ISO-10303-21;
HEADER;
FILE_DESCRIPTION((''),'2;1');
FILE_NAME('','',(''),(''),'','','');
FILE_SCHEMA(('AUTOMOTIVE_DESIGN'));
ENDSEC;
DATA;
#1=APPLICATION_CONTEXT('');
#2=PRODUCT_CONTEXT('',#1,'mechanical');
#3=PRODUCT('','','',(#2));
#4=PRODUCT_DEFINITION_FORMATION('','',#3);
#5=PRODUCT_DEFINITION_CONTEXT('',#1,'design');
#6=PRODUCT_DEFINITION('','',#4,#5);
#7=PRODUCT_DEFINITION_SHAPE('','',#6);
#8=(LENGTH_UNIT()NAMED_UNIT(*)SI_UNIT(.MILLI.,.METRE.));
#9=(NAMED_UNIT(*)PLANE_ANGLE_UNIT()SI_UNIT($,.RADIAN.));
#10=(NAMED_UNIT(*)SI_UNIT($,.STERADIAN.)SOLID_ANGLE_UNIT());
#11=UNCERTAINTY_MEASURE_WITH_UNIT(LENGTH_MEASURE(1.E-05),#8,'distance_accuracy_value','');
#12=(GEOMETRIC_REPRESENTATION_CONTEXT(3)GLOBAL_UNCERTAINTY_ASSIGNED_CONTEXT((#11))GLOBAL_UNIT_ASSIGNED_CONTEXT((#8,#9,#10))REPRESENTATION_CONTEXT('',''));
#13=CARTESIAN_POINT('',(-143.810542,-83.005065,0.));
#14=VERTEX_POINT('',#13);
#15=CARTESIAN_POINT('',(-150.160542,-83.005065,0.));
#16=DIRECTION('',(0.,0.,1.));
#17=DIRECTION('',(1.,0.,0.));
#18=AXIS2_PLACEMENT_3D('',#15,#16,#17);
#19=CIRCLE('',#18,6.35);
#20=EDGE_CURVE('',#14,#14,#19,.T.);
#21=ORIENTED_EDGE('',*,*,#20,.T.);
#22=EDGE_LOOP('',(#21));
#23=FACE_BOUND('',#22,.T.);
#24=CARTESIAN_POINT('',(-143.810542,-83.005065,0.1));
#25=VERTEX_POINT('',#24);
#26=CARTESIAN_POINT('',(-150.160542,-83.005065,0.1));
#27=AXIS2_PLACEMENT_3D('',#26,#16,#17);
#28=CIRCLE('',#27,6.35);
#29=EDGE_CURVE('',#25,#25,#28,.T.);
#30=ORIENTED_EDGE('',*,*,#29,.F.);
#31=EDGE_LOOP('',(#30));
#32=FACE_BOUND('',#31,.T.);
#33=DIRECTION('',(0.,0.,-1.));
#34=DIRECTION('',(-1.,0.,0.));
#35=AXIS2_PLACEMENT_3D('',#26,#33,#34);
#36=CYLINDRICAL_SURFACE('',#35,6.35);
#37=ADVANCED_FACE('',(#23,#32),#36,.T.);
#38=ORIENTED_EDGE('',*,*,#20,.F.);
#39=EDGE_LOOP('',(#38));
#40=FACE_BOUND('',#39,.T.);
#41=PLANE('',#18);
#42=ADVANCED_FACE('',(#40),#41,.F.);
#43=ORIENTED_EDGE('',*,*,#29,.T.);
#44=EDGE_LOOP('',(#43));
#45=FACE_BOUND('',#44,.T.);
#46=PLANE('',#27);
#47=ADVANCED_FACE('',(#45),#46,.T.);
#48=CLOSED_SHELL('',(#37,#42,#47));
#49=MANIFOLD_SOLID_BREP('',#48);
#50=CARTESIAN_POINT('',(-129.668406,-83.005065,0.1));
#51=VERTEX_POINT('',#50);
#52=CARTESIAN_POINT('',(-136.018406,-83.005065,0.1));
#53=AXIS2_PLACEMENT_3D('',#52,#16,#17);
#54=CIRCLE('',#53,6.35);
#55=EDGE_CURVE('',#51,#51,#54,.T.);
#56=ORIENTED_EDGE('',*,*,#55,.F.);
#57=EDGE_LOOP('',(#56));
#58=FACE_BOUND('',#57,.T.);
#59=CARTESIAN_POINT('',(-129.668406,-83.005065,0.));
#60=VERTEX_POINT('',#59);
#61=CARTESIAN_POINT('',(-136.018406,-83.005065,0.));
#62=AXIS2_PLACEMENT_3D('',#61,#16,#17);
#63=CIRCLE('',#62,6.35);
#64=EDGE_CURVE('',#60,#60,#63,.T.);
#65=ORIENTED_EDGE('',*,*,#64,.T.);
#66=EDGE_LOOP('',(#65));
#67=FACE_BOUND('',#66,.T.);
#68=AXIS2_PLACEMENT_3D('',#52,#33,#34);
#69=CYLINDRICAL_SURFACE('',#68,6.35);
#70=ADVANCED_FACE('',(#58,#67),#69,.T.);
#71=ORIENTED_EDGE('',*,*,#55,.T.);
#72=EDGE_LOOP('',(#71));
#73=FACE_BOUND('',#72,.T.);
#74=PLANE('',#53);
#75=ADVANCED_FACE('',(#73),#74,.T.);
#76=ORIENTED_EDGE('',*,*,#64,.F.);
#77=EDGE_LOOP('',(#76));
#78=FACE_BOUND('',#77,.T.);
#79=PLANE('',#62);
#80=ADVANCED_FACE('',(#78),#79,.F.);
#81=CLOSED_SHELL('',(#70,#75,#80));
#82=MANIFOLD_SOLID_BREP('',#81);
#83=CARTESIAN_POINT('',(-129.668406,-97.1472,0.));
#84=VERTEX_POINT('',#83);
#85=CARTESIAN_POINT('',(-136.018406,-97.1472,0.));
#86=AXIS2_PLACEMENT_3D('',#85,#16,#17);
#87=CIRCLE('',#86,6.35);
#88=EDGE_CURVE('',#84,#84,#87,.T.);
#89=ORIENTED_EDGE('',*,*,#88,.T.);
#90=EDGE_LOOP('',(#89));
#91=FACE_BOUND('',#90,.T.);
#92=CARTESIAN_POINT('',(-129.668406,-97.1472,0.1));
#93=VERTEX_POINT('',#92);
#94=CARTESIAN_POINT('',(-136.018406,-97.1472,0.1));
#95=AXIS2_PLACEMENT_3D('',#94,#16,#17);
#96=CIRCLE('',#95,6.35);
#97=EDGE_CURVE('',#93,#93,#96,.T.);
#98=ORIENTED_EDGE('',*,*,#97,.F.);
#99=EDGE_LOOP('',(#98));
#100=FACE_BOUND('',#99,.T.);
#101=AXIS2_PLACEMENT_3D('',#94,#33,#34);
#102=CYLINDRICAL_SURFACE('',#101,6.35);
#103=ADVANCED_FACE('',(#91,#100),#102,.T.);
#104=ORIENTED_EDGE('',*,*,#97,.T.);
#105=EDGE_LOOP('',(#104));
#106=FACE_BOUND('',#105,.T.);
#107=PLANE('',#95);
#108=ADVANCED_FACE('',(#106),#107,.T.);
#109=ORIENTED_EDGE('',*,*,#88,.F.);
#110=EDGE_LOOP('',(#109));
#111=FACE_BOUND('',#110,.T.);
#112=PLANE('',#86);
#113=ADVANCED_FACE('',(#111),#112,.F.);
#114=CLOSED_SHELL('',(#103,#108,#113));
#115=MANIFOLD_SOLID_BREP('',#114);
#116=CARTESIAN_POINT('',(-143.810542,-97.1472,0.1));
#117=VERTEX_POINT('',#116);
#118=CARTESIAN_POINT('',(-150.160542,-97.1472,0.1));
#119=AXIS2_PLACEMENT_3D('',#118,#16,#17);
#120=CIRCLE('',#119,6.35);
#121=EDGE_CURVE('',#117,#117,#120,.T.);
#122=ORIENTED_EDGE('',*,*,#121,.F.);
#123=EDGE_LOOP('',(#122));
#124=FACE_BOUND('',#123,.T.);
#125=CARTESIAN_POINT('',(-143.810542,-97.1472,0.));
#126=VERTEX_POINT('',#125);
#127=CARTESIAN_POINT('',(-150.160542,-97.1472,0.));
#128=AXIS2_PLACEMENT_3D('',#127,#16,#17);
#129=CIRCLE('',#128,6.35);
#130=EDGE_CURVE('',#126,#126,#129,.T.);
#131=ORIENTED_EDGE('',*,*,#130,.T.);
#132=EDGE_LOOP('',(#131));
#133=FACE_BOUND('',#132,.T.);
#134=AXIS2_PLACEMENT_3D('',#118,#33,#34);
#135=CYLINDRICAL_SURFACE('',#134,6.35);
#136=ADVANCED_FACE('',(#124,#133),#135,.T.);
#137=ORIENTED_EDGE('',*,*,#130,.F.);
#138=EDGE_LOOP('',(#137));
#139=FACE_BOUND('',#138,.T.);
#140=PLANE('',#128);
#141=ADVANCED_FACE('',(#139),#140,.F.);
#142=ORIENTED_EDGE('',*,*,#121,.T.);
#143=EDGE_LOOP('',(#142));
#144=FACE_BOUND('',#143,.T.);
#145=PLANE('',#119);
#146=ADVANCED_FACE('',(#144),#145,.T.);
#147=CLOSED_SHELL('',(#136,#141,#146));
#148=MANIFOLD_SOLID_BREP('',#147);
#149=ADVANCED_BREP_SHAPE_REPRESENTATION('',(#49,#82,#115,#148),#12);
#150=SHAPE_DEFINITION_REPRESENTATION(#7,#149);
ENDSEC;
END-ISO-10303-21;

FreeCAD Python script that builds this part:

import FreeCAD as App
import Part
import Sketcher

doc = App.newDocument("Part")
body = doc.addObject("PartDesign::Body", "Body")

# Sketch on XY plane
sketch1 = body.newObject("Sketcher::SketchObject", "Sketch")
sketch1.AttachmentSupport = (doc.getObject("XY_Plane"), [""])
sketch1.MapMode = "FlatFace"
sketch1.addGeometry(Part.Circle(App.Vector(-136, -83, 0), App.Vector(0, 0, 1), 6), False)
sketch1.addConstraint([
    Sketcher.Constraint("Diameter", 0, 12.7),
    Sketcher.Constraint("DistanceX", 0, 3, -1, 1, 136.018406),
    Sketcher.Constraint("DistanceY", 0, 3, -1, 1, 83.005065),
])
pad1 = body.newObject("PartDesign::Pad", "Pad")
pad1.Profile = sketch1
pad1.Length = 0.1
body2 = doc.addObject("PartDesign::Body", "Body001")

# Sketch on XY plane
sketch2 = body2.newObject("Sketcher::SketchObject", "Sketch001")
sketch2.AttachmentSupport = (doc.getObject("XY_Plane001"), [""])
sketch2.MapMode = "FlatFace"
sketch2.addGeometry(Part.Circle(App.Vector(-136, -97, 0), App.Vector(0, 0, 1), 6), False)
sketch2.addConstraint([
    Sketcher.Constraint("Diameter", 0, 12.7),
    Sketcher.Constraint("DistanceY", 0, 3, -1, 1, 97.1472),
    Sketcher.Constraint("DistanceX", 0, 3, -1, 1, 136.018406),
])
pad2 = body2.newObject("PartDesign::Pad", "Pad001")
pad2.Profile = sketch2
pad2.Length = 0.1
body3 = doc.addObject("PartDesign::Body", "Body002")

# Sketch on XY plane
sketch3 = body3.newObject("Sketcher::SketchObject", "Sketch002")
sketch3.AttachmentSupport = (doc.getObject("XY_Plane002"), [""])
sketch3.MapMode = "FlatFace"
sketch3.addGeometry(Part.Circle(App.Vector(-150, -97, 0), App.Vector(0, 0, 1), 6), False)
sketch3.addConstraint([
    Sketcher.Constraint("Diameter", 0, 12.7),
    Sketcher.Constraint("DistanceY", 0, 3, -1, 1, 97.1472),
    Sketcher.Constraint("DistanceX", 0, 3, -1, 1, 150.160542),
])
pad3 = body3.newObject("PartDesign::Pad", "Pad002")
pad3.Profile = sketch3
pad3.Length = 0.1
body4 = doc.addObject("PartDesign::Body", "Body003")

# Sketch on XY plane
sketch4 = body4.newObject("Sketcher::SketchObject", "Sketch003")
sketch4.AttachmentSupport = (doc.getObject("XY_Plane003"), [""])
sketch4.MapMode = "FlatFace"
sketch4.addGeometry(Part.Circle(App.Vector(-150, -83, 0), App.Vector(0, 0, 1), 6), False)
sketch4.addConstraint([
    Sketcher.Constraint("Diameter", 0, 12.7),
    Sketcher.Constraint("DistanceX", 0, 3, -1, 1, 150.160542),
    Sketcher.Constraint("DistanceY", 0, 3, -1, 1, 83.005065),
])
pad4 = body4.newObject("PartDesign::Pad", "Pad003")
pad4.Profile = sketch4
pad4.Length = 0.1

doc.recompute()
